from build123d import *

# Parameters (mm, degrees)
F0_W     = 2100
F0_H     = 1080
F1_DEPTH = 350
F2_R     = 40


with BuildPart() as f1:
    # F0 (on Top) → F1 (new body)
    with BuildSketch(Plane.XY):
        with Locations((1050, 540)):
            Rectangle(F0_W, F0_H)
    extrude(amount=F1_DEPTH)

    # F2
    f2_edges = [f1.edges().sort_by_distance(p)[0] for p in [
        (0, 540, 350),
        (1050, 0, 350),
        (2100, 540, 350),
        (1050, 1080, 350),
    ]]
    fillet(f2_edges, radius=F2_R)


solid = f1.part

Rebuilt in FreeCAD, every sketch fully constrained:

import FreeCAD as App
import Part
import Sketcher
from FreeCAD import Vector
Q = App.Units.Quantity


def edges_at(feature, points):
    """Names of the edges that pass closest to the given points."""
    edges = feature.Shape.Edges
    near = lambda p: min(range(len(edges)), key=lambda i: edges[i].distToShape(Part.Vertex(*p))[0])
    return sorted({f"Edge{near(p) + 1}" for p in points})

doc = App.newDocument("Part")
body = doc.addObject("PartDesign::Body", "Body")

# Sketch on XY plane
sketch1 = body.newObject("Sketcher::SketchObject", "Sketch")
sketch1.AttachmentSupport = (doc.getObject("XY_Plane"), [""])
sketch1.MapMode = "FlatFace"
sketch1.addGeometry([
    Part.LineSegment(Vector(0, 1080, 0), Vector(0, 0, 0)),
    Part.LineSegment(Vector(0, 0, 0), Vector(2100, 0, 0)),
    Part.LineSegment(Vector(2100, 0, 0), Vector(2100, 1080, 0)),
    Part.LineSegment(Vector(2100, 1080, 0), Vector(0, 1080, 0)),
], False)
sketch1.addConstraint([
    Sketcher.Constraint("Coincident", 0, 2, 1, 1),
    Sketcher.Constraint("Coincident", 1, 2, 2, 1),
    Sketcher.Constraint("Coincident", 2, 2, 3, 1),
    Sketcher.Constraint("Coincident", 3, 2, 0, 1),
    Sketcher.Constraint("Vertical", 0),
    Sketcher.Constraint("Horizontal", 1),
    Sketcher.Constraint("Vertical", 2),
    Sketcher.Constraint("Horizontal", 3),
    Sketcher.Constraint("Coincident", 0, 2, -1, 1),
    Sketcher.Constraint("DistanceX", 1, 1, 1, 2, Q("2100 mm")),
    Sketcher.Constraint("DistanceY", 0, 2, 0, 1, Q("1080 mm")),
])
pad1 = body.newObject("PartDesign::Pad", "Pad")
pad1.Profile = sketch1
pad1.Length = 350
doc.recompute()

fillet = body.newObject("PartDesign::Fillet", "Fillet")
fillet.Base = (pad1, edges_at(pad1, [
    (0, 540, 350),
    (1050, 0, 350),
    (2100, 540, 350),
    (1050, 1080, 350),
]))
fillet.Radius = 40

doc.recompute()
